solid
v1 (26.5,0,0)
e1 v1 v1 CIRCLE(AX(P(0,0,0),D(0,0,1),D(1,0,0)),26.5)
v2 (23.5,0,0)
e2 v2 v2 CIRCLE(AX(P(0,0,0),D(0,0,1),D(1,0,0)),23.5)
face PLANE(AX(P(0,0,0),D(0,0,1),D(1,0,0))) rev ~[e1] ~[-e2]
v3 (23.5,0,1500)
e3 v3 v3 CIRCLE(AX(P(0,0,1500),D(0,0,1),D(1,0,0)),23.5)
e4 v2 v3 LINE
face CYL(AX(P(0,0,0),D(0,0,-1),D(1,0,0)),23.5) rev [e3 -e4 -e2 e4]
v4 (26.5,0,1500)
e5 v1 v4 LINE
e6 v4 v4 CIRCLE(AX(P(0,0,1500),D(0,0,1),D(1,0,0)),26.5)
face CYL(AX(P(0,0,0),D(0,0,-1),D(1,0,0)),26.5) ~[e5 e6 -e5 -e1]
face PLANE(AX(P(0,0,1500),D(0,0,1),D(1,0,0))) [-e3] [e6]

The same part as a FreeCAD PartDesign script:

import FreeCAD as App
import Part
import Sketcher
from FreeCAD import Vector
Q = App.Units.Quantity

doc = App.newDocument("Part")
body = doc.addObject("PartDesign::Body", "Body")

# Sketch on XY plane
sketch1 = body.newObject("Sketcher::SketchObject", "Sketch")
sketch1.AttachmentSupport = (doc.getObject("XY_Plane"), [""])
sketch1.MapMode = "FlatFace"
sketch1.addGeometry([
    Part.Circle(Vector(0, 0, 0), Vector(0, 0, 1), 26.5),
    Part.Circle(Vector(0, 0, 0), Vector(0, 0, 1), 23.5),
], False)
sketch1.addConstraint([
    Sketcher.Constraint("Coincident", 0, 3, -1, 1),
    Sketcher.Constraint("Coincident", 1, 3, -1, 1),
    Sketcher.Constraint("Diameter", 1, Q("47 mm")),
    Sketcher.Constraint("Diameter", 0, Q("53 mm")),
])
pad1 = body.newObject("PartDesign::Pad", "Pad")
pad1.Profile = sketch1
pad1.Length = 1500

doc.recompute()
